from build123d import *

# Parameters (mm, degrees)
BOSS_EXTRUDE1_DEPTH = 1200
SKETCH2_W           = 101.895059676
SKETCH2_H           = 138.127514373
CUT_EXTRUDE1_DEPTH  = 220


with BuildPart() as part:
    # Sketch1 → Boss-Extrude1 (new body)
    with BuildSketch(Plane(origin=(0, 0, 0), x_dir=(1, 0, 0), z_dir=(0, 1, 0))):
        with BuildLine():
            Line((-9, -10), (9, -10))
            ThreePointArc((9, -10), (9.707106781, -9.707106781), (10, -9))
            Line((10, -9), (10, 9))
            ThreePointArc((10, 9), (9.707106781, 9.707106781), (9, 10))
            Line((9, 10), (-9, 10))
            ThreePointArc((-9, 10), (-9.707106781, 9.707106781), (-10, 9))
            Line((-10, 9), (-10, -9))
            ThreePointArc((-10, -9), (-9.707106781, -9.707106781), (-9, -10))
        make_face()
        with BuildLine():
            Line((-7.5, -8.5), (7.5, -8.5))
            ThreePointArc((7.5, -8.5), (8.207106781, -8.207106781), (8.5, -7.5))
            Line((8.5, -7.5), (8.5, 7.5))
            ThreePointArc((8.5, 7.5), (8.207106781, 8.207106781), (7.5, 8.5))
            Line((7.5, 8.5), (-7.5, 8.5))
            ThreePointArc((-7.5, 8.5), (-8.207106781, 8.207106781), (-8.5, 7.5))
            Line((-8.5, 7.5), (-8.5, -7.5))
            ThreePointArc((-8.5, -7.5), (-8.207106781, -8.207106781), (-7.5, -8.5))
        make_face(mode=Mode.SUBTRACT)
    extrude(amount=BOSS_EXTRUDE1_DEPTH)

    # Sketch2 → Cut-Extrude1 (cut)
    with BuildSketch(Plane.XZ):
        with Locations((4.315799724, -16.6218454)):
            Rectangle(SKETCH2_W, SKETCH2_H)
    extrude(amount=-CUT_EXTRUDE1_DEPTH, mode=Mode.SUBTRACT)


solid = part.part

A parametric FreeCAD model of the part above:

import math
import FreeCAD as App
import Part
import Sketcher
from FreeCAD import Vector

doc = App.newDocument("Part")
body = doc.addObject("PartDesign::Body", "Body")

sketch1 = body.newObject("Sketcher::SketchObject", "Sketch")
sketch1.AttachmentSupport = (doc.getObject("XZ_Plane"), [""])
sketch1.MapMode = "FlatFace"
sketch1.addGeometry([
    Part.LineSegment(Vector(-9, 10, 0), Vector(9, 10, 0)),
    Part.ArcOfCircle(Part.Circle(Vector(9, 9, 0), Vector(0, 0, 1), 1), math.radians(0), math.radians(90)),
    Part.LineSegment(Vector(10, 9, 0), Vector(10, -9, 0)),
    Part.ArcOfCircle(Part.Circle(Vector(9, -9, 0), Vector(0, 0, 1), 1), math.radians(-90), math.radians(0)),
    Part.LineSegment(Vector(9, -10, 0), Vector(-9, -10, 0)),
    Part.ArcOfCircle(Part.Circle(Vector(-9, -9, 0), Vector(0, 0, 1), 1), math.radians(-180), math.radians(-90)),
    Part.LineSegment(Vector(-10, -9, 0), Vector(-10, 9, 0)),
    Part.ArcOfCircle(Part.Circle(Vector(-9, 9, 0), Vector(0, 0, 1), 1), math.radians(90), math.radians(180)),
    Part.LineSegment(Vector(7.5, 8.5, 0), Vector(-7.5, 8.5, 0)),
    Part.ArcOfCircle(Part.Circle(Vector(-7.5, 7.5, 0), Vector(0, 0, 1), 1), math.radians(90), math.radians(180)),
    Part.LineSegment(Vector(-8.5, 7.5, 0), Vector(-8.5, -7.5, 0)),
    Part.ArcOfCircle(Part.Circle(Vector(-7.5, -7.5, 0), Vector(0, 0, 1), 1), math.radians(-180), math.radians(-90)),
    Part.LineSegment(Vector(-7.5, -8.5, 0), Vector(7.5, -8.5, 0)),
    Part.ArcOfCircle(Part.Circle(Vector(7.5, -7.5, 0), Vector(0, 0, 1), 1), math.radians(-90), math.radians(0)),
    Part.LineSegment(Vector(8.5, -7.5, 0), Vector(8.5, 7.5, 0)),
    Part.ArcOfCircle(Part.Circle(Vector(7.5, 7.5, 0), Vector(0, 0, 1), 1), math.radians(0), math.radians(90)),
], False)
sketch1.addConstraint([
    Sketcher.Constraint("Tangent", 0, 2, 1, 2),
    Sketcher.Constraint("Tangent", 1, 1, 2, 1),
    Sketcher.Constraint("Tangent", 2, 2, 3, 2),
    Sketcher.Constraint("Tangent", 3, 1, 4, 1),
    Sketcher.Constraint("Tangent", 4, 2, 5, 2),
    Sketcher.Constraint("Tangent", 5, 1, 6, 1),
    Sketcher.Constraint("Tangent", 6, 2, 7, 2),
    Sketcher.Constraint("Tangent", 7, 1, 0, 1),
    Sketcher.Constraint("Tangent", 8, 2, 9, 1),
    Sketcher.Constraint("Tangent", 9, 2, 10, 1),
    Sketcher.Constraint("Tangent", 10, 2, 11, 1),
    Sketcher.Constraint("Tangent", 11, 2, 12, 1),
    Sketcher.Constraint("Tangent", 12, 2, 13, 1),
    Sketcher.Constraint("Tangent", 13, 2, 14, 1),
    Sketcher.Constraint("Tangent", 14, 2, 15, 1),
    Sketcher.Constraint("Tangent", 15, 2, 8, 1),
    Sketcher.Constraint("Horizontal", 0),
    Sketcher.Constraint("Vertical", 2),
    Sketcher.Constraint("Horizontal", 4),
    Sketcher.Constraint("Vertical", 6),
    Sketcher.Constraint("Horizontal", 8),
    Sketcher.Constraint("Vertical", 10),
    Sketcher.Constraint("Horizontal", 12),
    Sketcher.Constraint("Vertical", 14),
    Sketcher.Constraint("Equal", 1, 3),
    Sketcher.Constraint("Equal", 3, 5),
    Sketcher.Constraint("Equal", 5, 7),
    Sketcher.Constraint("Equal", 7, 9),
    Sketcher.Constraint("Equal", 9, 11),
    Sketcher.Constraint("Equal", 11, 13),
    Sketcher.Constraint("Equal", 13, 15),
    Sketcher.Constraint("Symmetric", 1, 3, 5, 3, -1, 1),
    Sketcher.Constraint("Symmetric", 9, 3, 13, 3, -1, 1),
    Sketcher.Constraint("Equal", 4, 2),
    Sketcher.Constraint("Equal", 12, 10),
    Sketcher.Constraint("Radius", 1, 1.0),
    Sketcher.Constraint("DistanceX", 0, 1, 0, 2, 18.0),
    Sketcher.Constraint("DistanceX", 8, 2, 8, 1, 15.0),
])
pad1 = body.newObject("PartDesign::Pad", "Pad")
pad1.Profile = sketch1
pad1.Length = 1200
pad1.Reversed = True

sketch2 = body.newObject("Sketcher::SketchObject", "Sketch001")
sketch2.AttachmentSupport = (doc.getObject("XZ_Plane"), [""])
sketch2.MapMode = "FlatFace"
sketch2.addGeometry([
    Part.LineSegment(Vector(-46.63173, 52.441912, 0), Vector(-46.63173, -85.685603, 0)),
    Part.LineSegment(Vector(-46.63173, -85.685603, 0), Vector(55.26333, -85.685603, 0)),
    Part.LineSegment(Vector(55.26333, -85.685603, 0), Vector(55.26333, 52.441912, 0)),
    Part.LineSegment(Vector(55.26333, 52.441912, 0), Vector(-46.63173, 52.441912, 0)),
], False)
sketch2.addConstraint([
    Sketcher.Constraint("Coincident", 0, 2, 1, 1),
    Sketcher.Constraint("Coincident", 1, 2, 2, 1),
    Sketcher.Constraint("Coincident", 2, 2, 3, 1),
    Sketcher.Constraint("Coincident", 3, 2, 0, 1),
    Sketcher.Constraint("Vertical", 0),
    Sketcher.Constraint("Horizontal", 1),
    Sketcher.Constraint("Vertical", 2),
    Sketcher.Constraint("Horizontal", 3),
    Sketcher.Constraint("DistanceX", 1, 1, 1, 2, 101.89506),
    Sketcher.Constraint("DistanceY", 0, 2, 0, 1, 138.127514),
    Sketcher.Constraint("DistanceX", 0, 2, -1, 1, 46.63173),
    Sketcher.Constraint("DistanceY", -1, 1, 2, 2, 52.441912),
])
pocket1 = body.newObject("PartDesign::Pocket", "Pocket")
pocket1.Profile = sketch2
pocket1.Length = 220

doc.recompute()
